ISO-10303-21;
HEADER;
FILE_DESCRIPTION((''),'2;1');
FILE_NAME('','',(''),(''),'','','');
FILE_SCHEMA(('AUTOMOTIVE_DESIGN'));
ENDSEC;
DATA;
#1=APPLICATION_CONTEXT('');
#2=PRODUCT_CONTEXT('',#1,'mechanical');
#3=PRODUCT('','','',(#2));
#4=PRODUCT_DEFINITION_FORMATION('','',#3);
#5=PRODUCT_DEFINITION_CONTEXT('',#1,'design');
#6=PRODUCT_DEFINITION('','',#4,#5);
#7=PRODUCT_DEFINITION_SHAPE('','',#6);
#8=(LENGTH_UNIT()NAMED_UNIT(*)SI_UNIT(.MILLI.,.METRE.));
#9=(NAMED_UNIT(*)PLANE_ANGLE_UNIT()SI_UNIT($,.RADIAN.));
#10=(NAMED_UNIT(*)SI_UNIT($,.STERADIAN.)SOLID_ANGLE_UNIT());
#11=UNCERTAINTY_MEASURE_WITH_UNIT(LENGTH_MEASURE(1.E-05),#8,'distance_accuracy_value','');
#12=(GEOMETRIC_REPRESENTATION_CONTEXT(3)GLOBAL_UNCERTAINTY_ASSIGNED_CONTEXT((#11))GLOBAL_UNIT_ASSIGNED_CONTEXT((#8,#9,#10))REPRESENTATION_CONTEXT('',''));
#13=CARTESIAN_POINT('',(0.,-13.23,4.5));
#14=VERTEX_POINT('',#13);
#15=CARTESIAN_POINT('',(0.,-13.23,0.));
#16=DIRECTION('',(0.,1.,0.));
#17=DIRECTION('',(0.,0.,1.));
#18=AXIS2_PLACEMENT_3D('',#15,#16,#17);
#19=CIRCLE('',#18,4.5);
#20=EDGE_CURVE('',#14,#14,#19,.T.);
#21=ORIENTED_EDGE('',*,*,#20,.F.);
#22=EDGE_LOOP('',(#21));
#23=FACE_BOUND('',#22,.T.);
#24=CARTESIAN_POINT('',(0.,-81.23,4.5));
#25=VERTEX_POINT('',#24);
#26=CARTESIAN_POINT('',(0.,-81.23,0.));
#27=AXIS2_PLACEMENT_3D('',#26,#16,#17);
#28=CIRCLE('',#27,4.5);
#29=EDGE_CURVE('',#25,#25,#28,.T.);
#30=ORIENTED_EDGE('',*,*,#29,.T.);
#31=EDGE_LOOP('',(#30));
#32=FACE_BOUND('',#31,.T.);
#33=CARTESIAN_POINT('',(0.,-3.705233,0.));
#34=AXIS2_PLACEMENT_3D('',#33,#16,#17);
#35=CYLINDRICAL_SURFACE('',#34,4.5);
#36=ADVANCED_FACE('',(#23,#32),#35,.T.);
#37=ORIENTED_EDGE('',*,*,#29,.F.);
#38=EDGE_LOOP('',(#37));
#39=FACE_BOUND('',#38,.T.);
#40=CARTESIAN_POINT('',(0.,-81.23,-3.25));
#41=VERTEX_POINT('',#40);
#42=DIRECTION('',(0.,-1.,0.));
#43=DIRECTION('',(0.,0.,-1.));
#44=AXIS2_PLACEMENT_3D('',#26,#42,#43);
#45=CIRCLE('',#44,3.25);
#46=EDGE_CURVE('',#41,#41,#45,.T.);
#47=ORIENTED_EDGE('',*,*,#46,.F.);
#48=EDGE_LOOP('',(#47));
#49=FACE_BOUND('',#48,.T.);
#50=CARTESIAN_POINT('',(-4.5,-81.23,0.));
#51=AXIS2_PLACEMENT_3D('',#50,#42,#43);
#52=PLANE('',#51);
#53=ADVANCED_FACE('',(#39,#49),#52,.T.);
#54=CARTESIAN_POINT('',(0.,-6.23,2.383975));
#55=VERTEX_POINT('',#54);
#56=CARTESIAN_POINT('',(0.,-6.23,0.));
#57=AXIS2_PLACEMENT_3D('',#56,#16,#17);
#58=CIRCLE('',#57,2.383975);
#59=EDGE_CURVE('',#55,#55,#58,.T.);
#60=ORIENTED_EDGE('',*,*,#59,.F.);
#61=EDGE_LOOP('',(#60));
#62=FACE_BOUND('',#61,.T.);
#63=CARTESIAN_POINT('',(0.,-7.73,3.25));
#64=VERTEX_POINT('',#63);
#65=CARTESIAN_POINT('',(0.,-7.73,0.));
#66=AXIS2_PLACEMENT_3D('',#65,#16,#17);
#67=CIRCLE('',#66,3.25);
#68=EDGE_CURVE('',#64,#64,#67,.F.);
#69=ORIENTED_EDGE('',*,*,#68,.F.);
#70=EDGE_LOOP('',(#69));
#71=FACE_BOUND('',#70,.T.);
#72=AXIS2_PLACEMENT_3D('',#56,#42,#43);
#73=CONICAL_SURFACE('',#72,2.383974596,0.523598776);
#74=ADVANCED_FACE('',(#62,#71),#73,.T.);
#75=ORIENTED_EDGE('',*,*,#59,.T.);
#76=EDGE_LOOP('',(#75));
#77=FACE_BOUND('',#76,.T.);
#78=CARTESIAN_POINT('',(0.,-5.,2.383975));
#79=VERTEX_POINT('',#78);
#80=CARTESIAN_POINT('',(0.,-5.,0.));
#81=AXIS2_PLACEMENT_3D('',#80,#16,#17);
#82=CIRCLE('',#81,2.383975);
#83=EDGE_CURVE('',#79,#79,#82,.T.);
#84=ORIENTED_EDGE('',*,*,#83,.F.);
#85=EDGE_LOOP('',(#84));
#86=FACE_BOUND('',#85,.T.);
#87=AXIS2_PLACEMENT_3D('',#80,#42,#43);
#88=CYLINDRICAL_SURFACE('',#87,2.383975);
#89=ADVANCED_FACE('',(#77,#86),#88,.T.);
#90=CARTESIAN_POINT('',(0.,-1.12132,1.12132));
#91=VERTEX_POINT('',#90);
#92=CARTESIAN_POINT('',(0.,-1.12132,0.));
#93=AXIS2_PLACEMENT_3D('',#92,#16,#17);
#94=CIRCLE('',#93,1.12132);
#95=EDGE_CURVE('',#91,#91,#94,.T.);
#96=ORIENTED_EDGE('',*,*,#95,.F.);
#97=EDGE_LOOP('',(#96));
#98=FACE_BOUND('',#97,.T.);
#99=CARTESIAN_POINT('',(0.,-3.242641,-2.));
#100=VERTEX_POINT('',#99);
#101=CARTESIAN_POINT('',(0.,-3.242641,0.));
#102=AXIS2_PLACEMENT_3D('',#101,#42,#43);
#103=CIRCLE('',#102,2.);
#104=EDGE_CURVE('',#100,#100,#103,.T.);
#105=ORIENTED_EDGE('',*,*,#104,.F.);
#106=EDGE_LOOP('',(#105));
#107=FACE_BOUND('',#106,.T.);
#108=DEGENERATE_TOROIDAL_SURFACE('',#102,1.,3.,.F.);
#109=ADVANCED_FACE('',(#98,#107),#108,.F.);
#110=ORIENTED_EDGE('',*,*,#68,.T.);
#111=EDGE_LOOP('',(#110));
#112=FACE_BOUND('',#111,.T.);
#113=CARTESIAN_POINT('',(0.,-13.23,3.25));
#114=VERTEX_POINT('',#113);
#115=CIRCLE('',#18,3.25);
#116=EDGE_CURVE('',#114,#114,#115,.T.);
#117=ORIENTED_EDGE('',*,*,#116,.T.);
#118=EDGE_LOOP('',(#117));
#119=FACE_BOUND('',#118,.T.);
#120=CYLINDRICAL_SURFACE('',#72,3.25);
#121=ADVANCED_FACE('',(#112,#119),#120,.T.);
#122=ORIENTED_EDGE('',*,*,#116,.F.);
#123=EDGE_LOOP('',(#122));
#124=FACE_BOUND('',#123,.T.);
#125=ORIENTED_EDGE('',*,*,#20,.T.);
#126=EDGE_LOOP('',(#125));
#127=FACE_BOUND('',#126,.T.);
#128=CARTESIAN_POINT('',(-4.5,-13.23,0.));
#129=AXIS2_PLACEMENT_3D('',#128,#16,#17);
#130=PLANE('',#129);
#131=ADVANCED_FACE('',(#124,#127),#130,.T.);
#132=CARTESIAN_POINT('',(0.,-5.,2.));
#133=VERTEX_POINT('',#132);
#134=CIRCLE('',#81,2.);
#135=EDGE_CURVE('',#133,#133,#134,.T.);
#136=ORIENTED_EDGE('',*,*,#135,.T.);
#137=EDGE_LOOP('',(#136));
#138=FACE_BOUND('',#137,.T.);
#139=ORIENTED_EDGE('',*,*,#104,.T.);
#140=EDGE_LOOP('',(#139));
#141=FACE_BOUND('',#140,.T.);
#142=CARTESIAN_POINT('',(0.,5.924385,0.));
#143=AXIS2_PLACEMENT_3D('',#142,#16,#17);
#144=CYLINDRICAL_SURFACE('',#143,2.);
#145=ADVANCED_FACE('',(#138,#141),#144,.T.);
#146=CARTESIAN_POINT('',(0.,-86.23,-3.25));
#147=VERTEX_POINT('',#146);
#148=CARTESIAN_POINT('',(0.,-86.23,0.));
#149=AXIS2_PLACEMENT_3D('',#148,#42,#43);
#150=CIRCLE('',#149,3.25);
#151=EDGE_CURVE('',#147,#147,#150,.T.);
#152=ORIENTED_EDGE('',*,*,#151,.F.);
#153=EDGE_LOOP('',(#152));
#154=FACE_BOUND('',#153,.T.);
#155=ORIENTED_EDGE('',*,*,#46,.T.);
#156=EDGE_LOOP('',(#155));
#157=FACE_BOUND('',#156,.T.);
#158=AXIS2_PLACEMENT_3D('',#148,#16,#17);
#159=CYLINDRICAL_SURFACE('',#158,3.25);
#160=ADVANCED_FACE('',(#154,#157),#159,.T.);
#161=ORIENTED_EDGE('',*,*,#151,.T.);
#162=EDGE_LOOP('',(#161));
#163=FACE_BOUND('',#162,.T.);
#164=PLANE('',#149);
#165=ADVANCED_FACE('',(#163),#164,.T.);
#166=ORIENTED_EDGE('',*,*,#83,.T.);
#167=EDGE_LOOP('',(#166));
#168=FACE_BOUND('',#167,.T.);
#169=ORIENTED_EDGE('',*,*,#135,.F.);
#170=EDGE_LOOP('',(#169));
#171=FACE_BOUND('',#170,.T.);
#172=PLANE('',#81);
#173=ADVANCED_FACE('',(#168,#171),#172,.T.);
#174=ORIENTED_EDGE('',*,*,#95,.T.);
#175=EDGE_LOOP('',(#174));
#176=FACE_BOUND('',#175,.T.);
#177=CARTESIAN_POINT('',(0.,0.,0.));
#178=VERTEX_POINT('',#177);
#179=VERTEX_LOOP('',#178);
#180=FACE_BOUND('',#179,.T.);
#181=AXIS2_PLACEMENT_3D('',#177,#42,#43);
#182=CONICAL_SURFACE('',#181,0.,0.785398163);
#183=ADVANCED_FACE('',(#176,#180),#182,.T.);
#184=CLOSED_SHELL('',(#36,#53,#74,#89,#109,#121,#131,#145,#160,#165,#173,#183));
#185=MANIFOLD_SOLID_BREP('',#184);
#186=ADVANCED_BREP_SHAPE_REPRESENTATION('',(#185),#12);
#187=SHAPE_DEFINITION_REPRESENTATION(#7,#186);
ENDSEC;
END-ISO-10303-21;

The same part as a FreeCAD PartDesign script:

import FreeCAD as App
import Part
import Sketcher
Q = App.Units.Quantity


def edges_at(feature, points):
    """Names of the edges that pass closest to the given points."""
    edges = feature.Shape.Edges
    near = lambda p: min(range(len(edges)), key=lambda i: edges[i].distToShape(Part.Vertex(*p))[0])
    return sorted({f"Edge{near(p) + 1}" for p in points})


def add_polygon(sketch, points):
    """Adds a closed chain of lines whose ends are joined by coincident constraints."""
    first, n = sketch.GeometryCount, len(points)
    for a, b in zip(points, points[1:] + points[:1]):
        sketch.addGeometry(Part.LineSegment(App.Vector(*a, 0), App.Vector(*b, 0)), False)
    for i in range(n):
        sketch.addConstraint(Sketcher.Constraint("Coincident", first + i, 2, first + (i + 1) % n, 1))

doc = App.newDocument("Part")
params = doc.addObject("Spreadsheet::Sheet", "Params")
for row, (alias, value) in enumerate([
    ("sketch1_height", "68 mm"),
    ("sketch1_width", "4.5 mm"),
    ("revolution_angle", "360 deg"),
    ("sketch2_diameter", "6.5 mm"),
    ("pad1_length", "5 mm"),
    ("sketch3_diameter", "6.5 mm"),
    ("pad2_length", "7 mm"),
    ("chamfer_size", "1.5 mm"),
    ("chamfer_size2", "0.866025 mm"),
    ("pad3_length", "1.23 mm"),
    ("sketch5_width", "3 mm"),
    ("sketch5_width2", "5 mm"),
    ("sketch5_height", "2 mm"),
    ("revolution2_angle", "360 deg"),
    ("fillet_radius", "3 mm"),
], start=1):
    params.set(f"A{row}", alias)
    params.set(f"B{row}", "=" + value)
    params.setAlias(f"B{row}", alias)

body = doc.addObject("PartDesign::Body", "Body")

sketch1 = body.newObject("Sketcher::SketchObject", "Sketch")
sketch1.AttachmentSupport = (doc.getObject("XY_Plane"), [""])
sketch1.MapMode = "FlatFace"
add_polygon(sketch1, [(-4.5, 34), (-4.5, -34), (0, -34), (0, 34)])
sketch1.addConstraint(Sketcher.Constraint("Vertical", 0))
sketch1.addConstraint(Sketcher.Constraint("Horizontal", 1))
sketch1.addConstraint(Sketcher.Constraint("Vertical", 2))
sketch1.addConstraint(Sketcher.Constraint("Horizontal", 3))
sketch1.addConstraint(Sketcher.Constraint("Symmetric", 1, 2, 2, 2, -1, 1))
sketch1.addConstraint(Sketcher.Constraint("DistanceY", 0, 2, 0, 1, Q("68 mm")))
sketch1.addConstraint(Sketcher.Constraint("DistanceX", 1, 1, 1, 2, Q("4.5 mm")))
sketch1.setExpression("Constraints[9]", "Params.sketch1_height")
sketch1.setExpression("Constraints[10]", "Params.sketch1_width")
revolution = body.newObject("PartDesign::Revolution", "Revolution")
revolution.Profile = sketch1
revolution.ReferenceAxis = (sketch1, ["V_Axis"])
revolution.setExpression("Angle", "Params.revolution_angle")

sketch2 = body.newObject("Sketcher::SketchObject", "Sketch001")
sketch2.AttachmentSupport = (doc.getObject("XZ_Plane"), [""])
sketch2.MapMode = "FlatFace"
sketch2.AttachmentOffset = App.Placement(App.Vector(0, 0, 34), App.Rotation())
sketch2.addGeometry(Part.Circle(App.Vector(0, 0, 0), App.Vector(0, 0, 1), 3.25), False)
sketch2.addConstraint(Sketcher.Constraint("Coincident", 0, 3, -1, 1))
sketch2.addConstraint(Sketcher.Constraint("Diameter", 0, Q("6.5 mm")))
sketch2.setExpression("Constraints[1]", "Params.sketch2_diameter")
pad1 = body.newObject("PartDesign::Pad", "Pad")
pad1.Profile = sketch2
pad1.setExpression("Length", "Params.pad1_length")

sketch3 = body.newObject("Sketcher::SketchObject", "Sketch002")
sketch3.AttachmentSupport = (doc.getObject("XZ_Plane"), [""])
sketch3.MapMode = "FlatFace"
sketch3.AttachmentOffset = App.Placement(App.Vector(0, 0, -41), App.Rotation())
sketch3.addGeometry(Part.Circle(App.Vector(0, 0, 0), App.Vector(0, 0, 1), 3.25), False)
sketch3.addConstraint(Sketcher.Constraint("Coincident", 0, 3, -1, 1))
sketch3.addConstraint(Sketcher.Constraint("Diameter", 0, Q("6.5 mm")))
sketch3.setExpression("Constraints[1]", "Params.sketch3_diameter")
pad2 = body.newObject("PartDesign::Pad", "Pad001")
pad2.Profile = sketch3
pad2.setExpression("Length", "Params.pad2_length")
doc.recompute()

chamfer = body.newObject("PartDesign::Chamfer", "Chamfer")
chamfer.Base = (pad2, edges_at(pad2, [(0, 41, 3.25)]))
chamfer.ChamferType = "Two distances"
chamfer.setExpression("Size", "Params.chamfer_size")
chamfer.setExpression("Size2", "Params.chamfer_size2")

sketch4 = body.newObject("Sketcher::SketchObject", "Sketch003")
sketch4.AttachmentSupport = (doc.getObject("XZ_Plane"), [""])
sketch4.MapMode = "FlatFace"
sketch4.AttachmentOffset = App.Placement(App.Vector(0, 0, -41), App.Rotation())
sketch4.addGeometry(Part.Circle(App.Vector(0, 0, 0), App.Vector(0, 0, 1), 2.383975), False)
sketch4.addConstraint(Sketcher.Constraint("Coincident", 0, 3, -1, 1))
sketch4.addConstraint(Sketcher.Constraint("Diameter", 0, Q("4.767949 mm")))
pad3 = body.newObject("PartDesign::Pad", "Pad002")
pad3.Profile = sketch4
pad3.setExpression("Length", "Params.pad3_length")
pad3.Reversed = True

sketch5 = body.newObject("Sketcher::SketchObject", "Sketch004")
sketch5.AttachmentSupport = (doc.getObject("YZ_Plane"), [""])
sketch5.MapMode = "FlatFace"
add_polygon(sketch5, [(47.23, 0), (45.23, 2), (42.23, 2), (42.23, 0)])
sketch5.addConstraint(Sketcher.Constraint("Horizontal", 1))
sketch5.addConstraint(Sketcher.Constraint("Vertical", 2))
sketch5.addConstraint(Sketcher.Constraint("Horizontal", 3))
sketch5.addConstraint(Sketcher.Constraint("PointOnObject", 2, 2, -1))
sketch5.addConstraint(Sketcher.Constraint("DistanceX", 1, 2, 1, 1, Q("3 mm")))
sketch5.addConstraint(Sketcher.Constraint("DistanceX", 3, 1, 3, 2, Q("5 mm")))
sketch5.addConstraint(Sketcher.Constraint("DistanceY", 2, 2, 2, 1, Q("2 mm")))
sketch5.addConstraint(Sketcher.Constraint("DistanceX", -1, 1, 0, 2, Q("45.23 mm")))
sketch5.setExpression("Constraints[8]", "Params.sketch5_width")
sketch5.setExpression("Constraints[9]", "Params.sketch5_width2")
sketch5.setExpression("Constraints[10]", "Params.sketch5_height")
revolution2 = body.newObject("PartDesign::Revolution", "Revolution001")
revolution2.Profile = sketch5
revolution2.ReferenceAxis = (sketch5, ["H_Axis"])
revolution2.setExpression("Angle", "Params.revolution2_angle")
doc.recompute()

fillet = body.newObject("PartDesign::Fillet", "Fillet")
fillet.Base = (revolution2, edges_at(revolution2, [(0, 45.23, -2)]))
fillet.setExpression("Radius", "Params.fillet_radius")
body2 = doc.addObject("PartDesign::Body", "Body001")
doc.recompute()

body.Placement = App.Placement(App.Vector(0, -47.23, 0), App.Rotation(App.Vector(0, 0, 1), 0))
boolean = body2.newObject("PartDesign::Boolean", "Boolean")
boolean.Type = "Fuse"
boolean.addObjects([body])

doc.recompute()
